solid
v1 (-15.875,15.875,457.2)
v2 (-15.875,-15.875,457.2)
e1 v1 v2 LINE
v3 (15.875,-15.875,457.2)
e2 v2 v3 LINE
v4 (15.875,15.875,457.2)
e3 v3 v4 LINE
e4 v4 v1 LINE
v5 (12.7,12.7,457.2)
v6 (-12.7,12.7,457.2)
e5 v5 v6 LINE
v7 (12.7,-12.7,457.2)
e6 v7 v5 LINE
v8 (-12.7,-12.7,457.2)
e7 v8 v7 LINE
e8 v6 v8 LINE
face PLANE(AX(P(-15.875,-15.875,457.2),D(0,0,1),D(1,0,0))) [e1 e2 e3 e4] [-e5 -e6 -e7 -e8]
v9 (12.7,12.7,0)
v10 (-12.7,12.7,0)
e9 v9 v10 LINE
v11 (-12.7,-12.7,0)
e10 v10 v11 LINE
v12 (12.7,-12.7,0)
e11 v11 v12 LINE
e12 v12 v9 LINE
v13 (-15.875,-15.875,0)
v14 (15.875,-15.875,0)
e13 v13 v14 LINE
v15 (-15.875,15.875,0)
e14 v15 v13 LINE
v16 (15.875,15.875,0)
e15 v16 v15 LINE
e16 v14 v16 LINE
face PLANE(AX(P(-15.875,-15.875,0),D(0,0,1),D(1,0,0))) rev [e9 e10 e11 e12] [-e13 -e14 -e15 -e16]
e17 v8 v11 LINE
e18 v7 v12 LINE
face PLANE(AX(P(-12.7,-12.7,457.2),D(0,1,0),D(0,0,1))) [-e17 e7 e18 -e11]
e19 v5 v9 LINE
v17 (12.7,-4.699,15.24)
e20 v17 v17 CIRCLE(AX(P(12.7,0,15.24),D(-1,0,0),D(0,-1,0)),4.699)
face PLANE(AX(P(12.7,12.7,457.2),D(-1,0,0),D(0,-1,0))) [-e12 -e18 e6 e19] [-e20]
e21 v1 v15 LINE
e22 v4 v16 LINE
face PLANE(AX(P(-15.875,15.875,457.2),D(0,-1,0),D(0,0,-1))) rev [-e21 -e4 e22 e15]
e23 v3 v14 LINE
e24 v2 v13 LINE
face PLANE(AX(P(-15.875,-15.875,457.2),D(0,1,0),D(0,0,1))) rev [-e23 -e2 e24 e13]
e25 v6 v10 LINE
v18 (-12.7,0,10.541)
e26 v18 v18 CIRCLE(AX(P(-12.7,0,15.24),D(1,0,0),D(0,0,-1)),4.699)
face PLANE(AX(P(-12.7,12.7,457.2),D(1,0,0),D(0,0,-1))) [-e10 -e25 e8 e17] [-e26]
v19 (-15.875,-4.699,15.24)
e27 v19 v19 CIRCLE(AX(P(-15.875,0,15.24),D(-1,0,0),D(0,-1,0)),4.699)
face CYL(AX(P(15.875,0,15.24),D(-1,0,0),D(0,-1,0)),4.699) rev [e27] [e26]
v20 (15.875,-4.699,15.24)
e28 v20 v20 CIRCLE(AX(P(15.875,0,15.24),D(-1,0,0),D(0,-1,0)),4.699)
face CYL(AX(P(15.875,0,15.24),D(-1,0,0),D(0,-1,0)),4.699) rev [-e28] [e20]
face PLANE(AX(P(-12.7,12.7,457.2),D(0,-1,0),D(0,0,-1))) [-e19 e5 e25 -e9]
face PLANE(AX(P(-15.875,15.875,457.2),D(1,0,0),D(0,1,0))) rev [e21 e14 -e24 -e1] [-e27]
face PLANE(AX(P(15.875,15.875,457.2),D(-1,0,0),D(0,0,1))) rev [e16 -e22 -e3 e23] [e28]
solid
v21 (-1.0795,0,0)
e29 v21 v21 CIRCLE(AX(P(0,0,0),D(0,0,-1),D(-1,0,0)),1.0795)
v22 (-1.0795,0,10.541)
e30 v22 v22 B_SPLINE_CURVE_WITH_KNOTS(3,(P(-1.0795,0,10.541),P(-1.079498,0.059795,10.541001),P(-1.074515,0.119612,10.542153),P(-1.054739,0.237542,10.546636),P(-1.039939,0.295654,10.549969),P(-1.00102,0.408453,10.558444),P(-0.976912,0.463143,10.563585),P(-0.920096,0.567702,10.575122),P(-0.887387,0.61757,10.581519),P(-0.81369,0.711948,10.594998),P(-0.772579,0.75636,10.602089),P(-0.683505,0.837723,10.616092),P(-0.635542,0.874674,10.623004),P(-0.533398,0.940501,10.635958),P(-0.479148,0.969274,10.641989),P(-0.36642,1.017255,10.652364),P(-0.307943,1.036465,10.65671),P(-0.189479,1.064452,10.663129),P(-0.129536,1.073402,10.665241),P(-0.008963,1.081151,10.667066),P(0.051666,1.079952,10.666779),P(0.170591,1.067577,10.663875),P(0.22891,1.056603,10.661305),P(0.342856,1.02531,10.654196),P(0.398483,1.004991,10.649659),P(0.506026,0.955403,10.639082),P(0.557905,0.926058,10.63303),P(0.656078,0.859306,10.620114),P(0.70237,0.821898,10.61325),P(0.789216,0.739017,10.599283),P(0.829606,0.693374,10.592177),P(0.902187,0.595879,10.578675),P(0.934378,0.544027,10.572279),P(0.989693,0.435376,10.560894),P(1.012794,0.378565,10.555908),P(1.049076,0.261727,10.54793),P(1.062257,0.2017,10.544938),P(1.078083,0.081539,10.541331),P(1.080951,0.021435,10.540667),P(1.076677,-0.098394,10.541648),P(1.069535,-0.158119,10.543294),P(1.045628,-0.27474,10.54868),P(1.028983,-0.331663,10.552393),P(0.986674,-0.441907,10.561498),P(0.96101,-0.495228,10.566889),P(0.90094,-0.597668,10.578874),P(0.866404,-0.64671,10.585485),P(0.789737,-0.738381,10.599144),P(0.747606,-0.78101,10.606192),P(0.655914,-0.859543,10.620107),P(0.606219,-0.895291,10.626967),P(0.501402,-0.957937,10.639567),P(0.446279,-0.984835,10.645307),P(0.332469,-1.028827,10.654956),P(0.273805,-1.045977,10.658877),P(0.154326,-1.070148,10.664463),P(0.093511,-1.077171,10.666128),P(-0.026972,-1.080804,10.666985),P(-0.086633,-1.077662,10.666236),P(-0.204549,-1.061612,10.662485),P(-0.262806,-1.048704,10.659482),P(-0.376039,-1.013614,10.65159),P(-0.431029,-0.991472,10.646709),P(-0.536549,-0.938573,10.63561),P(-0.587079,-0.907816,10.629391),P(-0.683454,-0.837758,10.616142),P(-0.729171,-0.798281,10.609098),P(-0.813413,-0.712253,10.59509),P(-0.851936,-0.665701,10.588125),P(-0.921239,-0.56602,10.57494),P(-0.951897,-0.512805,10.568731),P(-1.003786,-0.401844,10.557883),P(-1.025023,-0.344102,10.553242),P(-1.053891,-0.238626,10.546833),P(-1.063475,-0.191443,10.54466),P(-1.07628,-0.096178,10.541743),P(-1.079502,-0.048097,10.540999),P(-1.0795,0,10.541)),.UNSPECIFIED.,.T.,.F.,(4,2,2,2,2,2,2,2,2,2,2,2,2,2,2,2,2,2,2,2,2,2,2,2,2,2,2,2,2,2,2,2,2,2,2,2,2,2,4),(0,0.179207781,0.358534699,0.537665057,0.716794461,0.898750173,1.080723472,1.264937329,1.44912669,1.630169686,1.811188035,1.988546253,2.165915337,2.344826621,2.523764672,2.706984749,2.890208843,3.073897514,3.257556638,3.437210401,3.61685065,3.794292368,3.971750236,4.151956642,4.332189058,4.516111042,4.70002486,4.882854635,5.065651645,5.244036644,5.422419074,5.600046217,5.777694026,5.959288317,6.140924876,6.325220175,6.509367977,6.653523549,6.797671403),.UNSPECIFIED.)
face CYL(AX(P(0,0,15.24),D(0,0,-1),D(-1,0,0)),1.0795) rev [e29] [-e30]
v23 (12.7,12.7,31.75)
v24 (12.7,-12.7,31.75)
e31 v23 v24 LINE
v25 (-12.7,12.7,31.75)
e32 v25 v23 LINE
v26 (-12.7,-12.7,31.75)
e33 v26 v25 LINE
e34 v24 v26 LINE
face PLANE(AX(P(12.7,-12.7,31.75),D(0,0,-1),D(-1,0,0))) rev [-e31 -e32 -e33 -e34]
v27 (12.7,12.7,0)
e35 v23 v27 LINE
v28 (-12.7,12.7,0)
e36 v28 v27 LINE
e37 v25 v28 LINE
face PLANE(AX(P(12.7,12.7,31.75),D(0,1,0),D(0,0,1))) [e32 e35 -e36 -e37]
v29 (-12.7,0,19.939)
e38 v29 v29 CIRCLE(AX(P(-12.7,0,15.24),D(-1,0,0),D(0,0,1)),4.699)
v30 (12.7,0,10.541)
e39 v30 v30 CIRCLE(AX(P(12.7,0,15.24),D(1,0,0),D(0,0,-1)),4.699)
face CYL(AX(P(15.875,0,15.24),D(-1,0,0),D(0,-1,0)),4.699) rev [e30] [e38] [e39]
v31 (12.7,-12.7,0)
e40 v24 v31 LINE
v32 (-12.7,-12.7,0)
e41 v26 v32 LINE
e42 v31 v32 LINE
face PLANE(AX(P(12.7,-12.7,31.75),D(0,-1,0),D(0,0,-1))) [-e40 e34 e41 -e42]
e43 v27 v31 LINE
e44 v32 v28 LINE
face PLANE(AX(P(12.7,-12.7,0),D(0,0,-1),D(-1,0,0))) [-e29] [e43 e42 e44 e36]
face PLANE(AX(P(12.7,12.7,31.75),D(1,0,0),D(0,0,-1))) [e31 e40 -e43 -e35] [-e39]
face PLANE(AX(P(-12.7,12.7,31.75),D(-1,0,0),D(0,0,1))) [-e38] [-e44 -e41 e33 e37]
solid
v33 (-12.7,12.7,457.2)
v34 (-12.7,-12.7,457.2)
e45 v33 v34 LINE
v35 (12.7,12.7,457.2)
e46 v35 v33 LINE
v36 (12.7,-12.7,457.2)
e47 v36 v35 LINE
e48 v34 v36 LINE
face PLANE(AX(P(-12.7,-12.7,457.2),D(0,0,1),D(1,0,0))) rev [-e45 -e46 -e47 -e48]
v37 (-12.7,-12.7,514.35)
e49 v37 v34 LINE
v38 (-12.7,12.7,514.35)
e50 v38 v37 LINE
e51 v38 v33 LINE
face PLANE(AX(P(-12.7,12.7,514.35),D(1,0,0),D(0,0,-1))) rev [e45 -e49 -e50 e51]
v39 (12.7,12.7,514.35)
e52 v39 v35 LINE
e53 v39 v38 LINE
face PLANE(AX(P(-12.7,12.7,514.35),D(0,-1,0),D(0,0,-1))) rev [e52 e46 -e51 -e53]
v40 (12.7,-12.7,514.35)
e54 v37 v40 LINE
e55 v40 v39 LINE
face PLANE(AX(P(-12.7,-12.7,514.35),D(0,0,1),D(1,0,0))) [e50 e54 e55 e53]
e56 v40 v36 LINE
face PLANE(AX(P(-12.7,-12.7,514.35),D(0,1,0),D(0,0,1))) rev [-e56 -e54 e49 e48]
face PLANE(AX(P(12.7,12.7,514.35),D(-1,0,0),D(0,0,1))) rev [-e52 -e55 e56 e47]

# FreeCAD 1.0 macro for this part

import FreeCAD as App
import Part
import Sketcher
from FreeCAD import Vector
Q = App.Units.Quantity


def add_polygon(sketch, points):
    """Adds a closed chain of lines whose ends are joined by coincident constraints."""
    first, n = sketch.GeometryCount, len(points)
    for a, b in zip(points, points[1:] + points[:1]):
        sketch.addGeometry(Part.LineSegment(App.Vector(*a, 0), App.Vector(*b, 0)), False)
    for i in range(n):
        sketch.addConstraint(Sketcher.Constraint("Coincident", first + i, 2, first + (i + 1) % n, 1))

doc = App.newDocument("Part")
params = doc.addObject("Spreadsheet::Sheet", "Params")
for row, (alias, value) in enumerate([
    ("sketch1_width", "1 in"),
    ("sketch1_width2", "1.25 in"),
    ("pad1_length", "18 in"),
    ("sketch2_width", "1 in"),
    ("pad2_length", "2.25 in"),
    ("sketch3_width", "1 in"),
    ("pad3_length", "1.25 in"),
    ("sketch4_diameter", "0.37 in"),
    ("pad4_length", "32.75 mm"),
    ("sketch5_diameter", "0.085 in"),
    ("pocket1_length", "0.6 in"),
], start=1):
    params.set(f"A{row}", alias)
    params.set(f"B{row}", "=" + value)
    params.setAlias(f"B{row}", alias)

body = doc.addObject("PartDesign::Body", "Body")

# Sketch on XY plane
sketch1 = body.newObject("Sketcher::SketchObject", "Sketch")
sketch1.AttachmentSupport = (doc.getObject("XY_Plane"), [""])
sketch1.MapMode = "FlatFace"
add_polygon(sketch1, [(-16, 16), (-16, -16), (16, -16), (16, 16)])  # lines 0-3
add_polygon(sketch1, [(13, -13), (-13, -13), (-13, 13), (13, 13)])  # lines 4-7
sketch1.addConstraint([
    Sketcher.Constraint("Vertical", 0),
    Sketcher.Constraint("Horizontal", 1),
    Sketcher.Constraint("Vertical", 2),
    Sketcher.Constraint("Horizontal", 3),
    Sketcher.Constraint("Horizontal", 4),
    Sketcher.Constraint("Vertical", 5),
    Sketcher.Constraint("Horizontal", 6),
    Sketcher.Constraint("Vertical", 7),
    Sketcher.Constraint("Symmetric", 0, 2, 2, 2, -1, 1),
    Sketcher.Constraint("Symmetric", 4, 2, 6, 2, -1, 1),
    Sketcher.Constraint("Equal", 3, 0),
    Sketcher.Constraint("Equal", 6, 5),
    Sketcher.Constraint("DistanceX", 4, 2, 4, 1, Q("1 in")),
    Sketcher.Constraint("DistanceX", 1, 1, 1, 2, Q("1.25 in")),
])
sketch1.setExpression("Constraints[20]", "Params.sketch1_width")
sketch1.setExpression("Constraints[21]", "Params.sketch1_width2")
pad1 = body.newObject("PartDesign::Pad", "Pad")
pad1.Profile = sketch1
pad1.setExpression("Length", "Params.pad1_length")
body2 = doc.addObject("PartDesign::Body", "Body001")

# Sketch on XY plane
sketch2 = body2.newObject("Sketcher::SketchObject", "Sketch001")
sketch2.AttachmentSupport = (doc.getObject("XY_Plane001"), [""])
sketch2.MapMode = "FlatFace"
sketch2.AttachmentOffset = App.Placement(Vector(0, 0, 18 * 25.4), App.Rotation())
add_polygon(sketch2, [(-13, 13), (-13, -13), (13, -13), (13, 13)])  # lines 0-3
sketch2.addConstraint([
    Sketcher.Constraint("Vertical", 0),
    Sketcher.Constraint("Horizontal", 1),
    Sketcher.Constraint("Vertical", 2),
    Sketcher.Constraint("Horizontal", 3),
    Sketcher.Constraint("Symmetric", 0, 2, 2, 2, -1, 1),
    Sketcher.Constraint("Equal", 3, 0),
    Sketcher.Constraint("DistanceX", 1, 1, 1, 2, Q("1 in")),
])
sketch2.setExpression("Constraints[10]", "Params.sketch2_width")
pad2 = body2.newObject("PartDesign::Pad", "Pad001")
pad2.Profile = sketch2
pad2.setExpression("Length", "Params.pad2_length")
body3 = doc.addObject("PartDesign::Body", "Body002")

# Sketch on XY plane
sketch3 = body3.newObject("Sketcher::SketchObject", "Sketch002")
sketch3.AttachmentSupport = (doc.getObject("XY_Plane002"), [""])
sketch3.MapMode = "FlatFace"
add_polygon(sketch3, [(13, 13), (13, -13), (-13, -13), (-13, 13)])  # lines 0-3
sketch3.addConstraint([
    Sketcher.Constraint("Vertical", 0),
    Sketcher.Constraint("Horizontal", 1),
    Sketcher.Constraint("Vertical", 2),
    Sketcher.Constraint("Horizontal", 3),
    Sketcher.Constraint("Symmetric", 0, 2, 2, 2, -1, 1),
    Sketcher.Constraint("Equal", 3, 0),
    Sketcher.Constraint("DistanceX", 1, 2, 1, 1, Q("1 in")),
])
sketch3.setExpression("Constraints[10]", "Params.sketch3_width")
pad3 = body3.newObject("PartDesign::Pad", "Pad002")
pad3.Profile = sketch3
pad3.setExpression("Length", "Params.pad3_length")
body4 = doc.addObject("PartDesign::Body", "Body003")

# Sketch on YZ plane
sketch4 = body4.newObject("Sketcher::SketchObject", "Sketch003")
sketch4.AttachmentSupport = (doc.getObject("YZ_Plane003"), [""])
sketch4.MapMode = "FlatFace"
sketch4.AttachmentOffset = App.Placement(Vector(0, 0, -0.625 * 25.4), App.Rotation())
sketch4.addGeometry(Part.Circle(Vector(0, 15.2, 0), Vector(0, 0, 1), 4.7), False)
sketch4.addConstraint([
    Sketcher.Constraint("PointOnObject", 0, 3, -2),
    Sketcher.Constraint("Diameter", 0, Q("0.37 in")),
    Sketcher.Constraint("DistanceY", -1, 1, 0, 3, Q("0.6 in")),
])
sketch4.setExpression("Constraints[1]", "Params.sketch4_diameter")
pad4 = body4.newObject("PartDesign::Pad", "Pad003")
pad4.Profile = sketch4
pad4.setExpression("Length", "Params.pad4_length")
doc.recompute()

body5 = doc.addObject("PartDesign::Body", "Body004")
body5.BaseFeature = body4
boolean = body.newObject("PartDesign::Boolean", "Boolean")
boolean.Type = "Cut"
boolean.addObjects([body5])
doc.recompute()

boolean2 = body3.newObject("PartDesign::Boolean", "Boolean001")
boolean2.Type = "Cut"
boolean2.addObjects([body4])

# Sketch on XY plane
sketch5 = body3.newObject("Sketcher::SketchObject", "Sketch004")
sketch5.AttachmentSupport = (doc.getObject("XY_Plane002"), [""])
sketch5.MapMode = "FlatFace"
sketch5.addGeometry(Part.Circle(Vector(0, 0, 0), Vector(0, 0, 1), 1.1), False)
sketch5.addConstraint([
    Sketcher.Constraint("Coincident", 0, 3, -1, 1),
    Sketcher.Constraint("Diameter", 0, Q("0.085 in")),
])
sketch5.setExpression("Constraints[1]", "Params.sketch5_diameter")
pocket1 = body3.newObject("PartDesign::Pocket", "Pocket")
pocket1.Profile = sketch5
pocket1.setExpression("Length", "Params.pocket1_length")
pocket1.Reversed = True

doc.recompute()
